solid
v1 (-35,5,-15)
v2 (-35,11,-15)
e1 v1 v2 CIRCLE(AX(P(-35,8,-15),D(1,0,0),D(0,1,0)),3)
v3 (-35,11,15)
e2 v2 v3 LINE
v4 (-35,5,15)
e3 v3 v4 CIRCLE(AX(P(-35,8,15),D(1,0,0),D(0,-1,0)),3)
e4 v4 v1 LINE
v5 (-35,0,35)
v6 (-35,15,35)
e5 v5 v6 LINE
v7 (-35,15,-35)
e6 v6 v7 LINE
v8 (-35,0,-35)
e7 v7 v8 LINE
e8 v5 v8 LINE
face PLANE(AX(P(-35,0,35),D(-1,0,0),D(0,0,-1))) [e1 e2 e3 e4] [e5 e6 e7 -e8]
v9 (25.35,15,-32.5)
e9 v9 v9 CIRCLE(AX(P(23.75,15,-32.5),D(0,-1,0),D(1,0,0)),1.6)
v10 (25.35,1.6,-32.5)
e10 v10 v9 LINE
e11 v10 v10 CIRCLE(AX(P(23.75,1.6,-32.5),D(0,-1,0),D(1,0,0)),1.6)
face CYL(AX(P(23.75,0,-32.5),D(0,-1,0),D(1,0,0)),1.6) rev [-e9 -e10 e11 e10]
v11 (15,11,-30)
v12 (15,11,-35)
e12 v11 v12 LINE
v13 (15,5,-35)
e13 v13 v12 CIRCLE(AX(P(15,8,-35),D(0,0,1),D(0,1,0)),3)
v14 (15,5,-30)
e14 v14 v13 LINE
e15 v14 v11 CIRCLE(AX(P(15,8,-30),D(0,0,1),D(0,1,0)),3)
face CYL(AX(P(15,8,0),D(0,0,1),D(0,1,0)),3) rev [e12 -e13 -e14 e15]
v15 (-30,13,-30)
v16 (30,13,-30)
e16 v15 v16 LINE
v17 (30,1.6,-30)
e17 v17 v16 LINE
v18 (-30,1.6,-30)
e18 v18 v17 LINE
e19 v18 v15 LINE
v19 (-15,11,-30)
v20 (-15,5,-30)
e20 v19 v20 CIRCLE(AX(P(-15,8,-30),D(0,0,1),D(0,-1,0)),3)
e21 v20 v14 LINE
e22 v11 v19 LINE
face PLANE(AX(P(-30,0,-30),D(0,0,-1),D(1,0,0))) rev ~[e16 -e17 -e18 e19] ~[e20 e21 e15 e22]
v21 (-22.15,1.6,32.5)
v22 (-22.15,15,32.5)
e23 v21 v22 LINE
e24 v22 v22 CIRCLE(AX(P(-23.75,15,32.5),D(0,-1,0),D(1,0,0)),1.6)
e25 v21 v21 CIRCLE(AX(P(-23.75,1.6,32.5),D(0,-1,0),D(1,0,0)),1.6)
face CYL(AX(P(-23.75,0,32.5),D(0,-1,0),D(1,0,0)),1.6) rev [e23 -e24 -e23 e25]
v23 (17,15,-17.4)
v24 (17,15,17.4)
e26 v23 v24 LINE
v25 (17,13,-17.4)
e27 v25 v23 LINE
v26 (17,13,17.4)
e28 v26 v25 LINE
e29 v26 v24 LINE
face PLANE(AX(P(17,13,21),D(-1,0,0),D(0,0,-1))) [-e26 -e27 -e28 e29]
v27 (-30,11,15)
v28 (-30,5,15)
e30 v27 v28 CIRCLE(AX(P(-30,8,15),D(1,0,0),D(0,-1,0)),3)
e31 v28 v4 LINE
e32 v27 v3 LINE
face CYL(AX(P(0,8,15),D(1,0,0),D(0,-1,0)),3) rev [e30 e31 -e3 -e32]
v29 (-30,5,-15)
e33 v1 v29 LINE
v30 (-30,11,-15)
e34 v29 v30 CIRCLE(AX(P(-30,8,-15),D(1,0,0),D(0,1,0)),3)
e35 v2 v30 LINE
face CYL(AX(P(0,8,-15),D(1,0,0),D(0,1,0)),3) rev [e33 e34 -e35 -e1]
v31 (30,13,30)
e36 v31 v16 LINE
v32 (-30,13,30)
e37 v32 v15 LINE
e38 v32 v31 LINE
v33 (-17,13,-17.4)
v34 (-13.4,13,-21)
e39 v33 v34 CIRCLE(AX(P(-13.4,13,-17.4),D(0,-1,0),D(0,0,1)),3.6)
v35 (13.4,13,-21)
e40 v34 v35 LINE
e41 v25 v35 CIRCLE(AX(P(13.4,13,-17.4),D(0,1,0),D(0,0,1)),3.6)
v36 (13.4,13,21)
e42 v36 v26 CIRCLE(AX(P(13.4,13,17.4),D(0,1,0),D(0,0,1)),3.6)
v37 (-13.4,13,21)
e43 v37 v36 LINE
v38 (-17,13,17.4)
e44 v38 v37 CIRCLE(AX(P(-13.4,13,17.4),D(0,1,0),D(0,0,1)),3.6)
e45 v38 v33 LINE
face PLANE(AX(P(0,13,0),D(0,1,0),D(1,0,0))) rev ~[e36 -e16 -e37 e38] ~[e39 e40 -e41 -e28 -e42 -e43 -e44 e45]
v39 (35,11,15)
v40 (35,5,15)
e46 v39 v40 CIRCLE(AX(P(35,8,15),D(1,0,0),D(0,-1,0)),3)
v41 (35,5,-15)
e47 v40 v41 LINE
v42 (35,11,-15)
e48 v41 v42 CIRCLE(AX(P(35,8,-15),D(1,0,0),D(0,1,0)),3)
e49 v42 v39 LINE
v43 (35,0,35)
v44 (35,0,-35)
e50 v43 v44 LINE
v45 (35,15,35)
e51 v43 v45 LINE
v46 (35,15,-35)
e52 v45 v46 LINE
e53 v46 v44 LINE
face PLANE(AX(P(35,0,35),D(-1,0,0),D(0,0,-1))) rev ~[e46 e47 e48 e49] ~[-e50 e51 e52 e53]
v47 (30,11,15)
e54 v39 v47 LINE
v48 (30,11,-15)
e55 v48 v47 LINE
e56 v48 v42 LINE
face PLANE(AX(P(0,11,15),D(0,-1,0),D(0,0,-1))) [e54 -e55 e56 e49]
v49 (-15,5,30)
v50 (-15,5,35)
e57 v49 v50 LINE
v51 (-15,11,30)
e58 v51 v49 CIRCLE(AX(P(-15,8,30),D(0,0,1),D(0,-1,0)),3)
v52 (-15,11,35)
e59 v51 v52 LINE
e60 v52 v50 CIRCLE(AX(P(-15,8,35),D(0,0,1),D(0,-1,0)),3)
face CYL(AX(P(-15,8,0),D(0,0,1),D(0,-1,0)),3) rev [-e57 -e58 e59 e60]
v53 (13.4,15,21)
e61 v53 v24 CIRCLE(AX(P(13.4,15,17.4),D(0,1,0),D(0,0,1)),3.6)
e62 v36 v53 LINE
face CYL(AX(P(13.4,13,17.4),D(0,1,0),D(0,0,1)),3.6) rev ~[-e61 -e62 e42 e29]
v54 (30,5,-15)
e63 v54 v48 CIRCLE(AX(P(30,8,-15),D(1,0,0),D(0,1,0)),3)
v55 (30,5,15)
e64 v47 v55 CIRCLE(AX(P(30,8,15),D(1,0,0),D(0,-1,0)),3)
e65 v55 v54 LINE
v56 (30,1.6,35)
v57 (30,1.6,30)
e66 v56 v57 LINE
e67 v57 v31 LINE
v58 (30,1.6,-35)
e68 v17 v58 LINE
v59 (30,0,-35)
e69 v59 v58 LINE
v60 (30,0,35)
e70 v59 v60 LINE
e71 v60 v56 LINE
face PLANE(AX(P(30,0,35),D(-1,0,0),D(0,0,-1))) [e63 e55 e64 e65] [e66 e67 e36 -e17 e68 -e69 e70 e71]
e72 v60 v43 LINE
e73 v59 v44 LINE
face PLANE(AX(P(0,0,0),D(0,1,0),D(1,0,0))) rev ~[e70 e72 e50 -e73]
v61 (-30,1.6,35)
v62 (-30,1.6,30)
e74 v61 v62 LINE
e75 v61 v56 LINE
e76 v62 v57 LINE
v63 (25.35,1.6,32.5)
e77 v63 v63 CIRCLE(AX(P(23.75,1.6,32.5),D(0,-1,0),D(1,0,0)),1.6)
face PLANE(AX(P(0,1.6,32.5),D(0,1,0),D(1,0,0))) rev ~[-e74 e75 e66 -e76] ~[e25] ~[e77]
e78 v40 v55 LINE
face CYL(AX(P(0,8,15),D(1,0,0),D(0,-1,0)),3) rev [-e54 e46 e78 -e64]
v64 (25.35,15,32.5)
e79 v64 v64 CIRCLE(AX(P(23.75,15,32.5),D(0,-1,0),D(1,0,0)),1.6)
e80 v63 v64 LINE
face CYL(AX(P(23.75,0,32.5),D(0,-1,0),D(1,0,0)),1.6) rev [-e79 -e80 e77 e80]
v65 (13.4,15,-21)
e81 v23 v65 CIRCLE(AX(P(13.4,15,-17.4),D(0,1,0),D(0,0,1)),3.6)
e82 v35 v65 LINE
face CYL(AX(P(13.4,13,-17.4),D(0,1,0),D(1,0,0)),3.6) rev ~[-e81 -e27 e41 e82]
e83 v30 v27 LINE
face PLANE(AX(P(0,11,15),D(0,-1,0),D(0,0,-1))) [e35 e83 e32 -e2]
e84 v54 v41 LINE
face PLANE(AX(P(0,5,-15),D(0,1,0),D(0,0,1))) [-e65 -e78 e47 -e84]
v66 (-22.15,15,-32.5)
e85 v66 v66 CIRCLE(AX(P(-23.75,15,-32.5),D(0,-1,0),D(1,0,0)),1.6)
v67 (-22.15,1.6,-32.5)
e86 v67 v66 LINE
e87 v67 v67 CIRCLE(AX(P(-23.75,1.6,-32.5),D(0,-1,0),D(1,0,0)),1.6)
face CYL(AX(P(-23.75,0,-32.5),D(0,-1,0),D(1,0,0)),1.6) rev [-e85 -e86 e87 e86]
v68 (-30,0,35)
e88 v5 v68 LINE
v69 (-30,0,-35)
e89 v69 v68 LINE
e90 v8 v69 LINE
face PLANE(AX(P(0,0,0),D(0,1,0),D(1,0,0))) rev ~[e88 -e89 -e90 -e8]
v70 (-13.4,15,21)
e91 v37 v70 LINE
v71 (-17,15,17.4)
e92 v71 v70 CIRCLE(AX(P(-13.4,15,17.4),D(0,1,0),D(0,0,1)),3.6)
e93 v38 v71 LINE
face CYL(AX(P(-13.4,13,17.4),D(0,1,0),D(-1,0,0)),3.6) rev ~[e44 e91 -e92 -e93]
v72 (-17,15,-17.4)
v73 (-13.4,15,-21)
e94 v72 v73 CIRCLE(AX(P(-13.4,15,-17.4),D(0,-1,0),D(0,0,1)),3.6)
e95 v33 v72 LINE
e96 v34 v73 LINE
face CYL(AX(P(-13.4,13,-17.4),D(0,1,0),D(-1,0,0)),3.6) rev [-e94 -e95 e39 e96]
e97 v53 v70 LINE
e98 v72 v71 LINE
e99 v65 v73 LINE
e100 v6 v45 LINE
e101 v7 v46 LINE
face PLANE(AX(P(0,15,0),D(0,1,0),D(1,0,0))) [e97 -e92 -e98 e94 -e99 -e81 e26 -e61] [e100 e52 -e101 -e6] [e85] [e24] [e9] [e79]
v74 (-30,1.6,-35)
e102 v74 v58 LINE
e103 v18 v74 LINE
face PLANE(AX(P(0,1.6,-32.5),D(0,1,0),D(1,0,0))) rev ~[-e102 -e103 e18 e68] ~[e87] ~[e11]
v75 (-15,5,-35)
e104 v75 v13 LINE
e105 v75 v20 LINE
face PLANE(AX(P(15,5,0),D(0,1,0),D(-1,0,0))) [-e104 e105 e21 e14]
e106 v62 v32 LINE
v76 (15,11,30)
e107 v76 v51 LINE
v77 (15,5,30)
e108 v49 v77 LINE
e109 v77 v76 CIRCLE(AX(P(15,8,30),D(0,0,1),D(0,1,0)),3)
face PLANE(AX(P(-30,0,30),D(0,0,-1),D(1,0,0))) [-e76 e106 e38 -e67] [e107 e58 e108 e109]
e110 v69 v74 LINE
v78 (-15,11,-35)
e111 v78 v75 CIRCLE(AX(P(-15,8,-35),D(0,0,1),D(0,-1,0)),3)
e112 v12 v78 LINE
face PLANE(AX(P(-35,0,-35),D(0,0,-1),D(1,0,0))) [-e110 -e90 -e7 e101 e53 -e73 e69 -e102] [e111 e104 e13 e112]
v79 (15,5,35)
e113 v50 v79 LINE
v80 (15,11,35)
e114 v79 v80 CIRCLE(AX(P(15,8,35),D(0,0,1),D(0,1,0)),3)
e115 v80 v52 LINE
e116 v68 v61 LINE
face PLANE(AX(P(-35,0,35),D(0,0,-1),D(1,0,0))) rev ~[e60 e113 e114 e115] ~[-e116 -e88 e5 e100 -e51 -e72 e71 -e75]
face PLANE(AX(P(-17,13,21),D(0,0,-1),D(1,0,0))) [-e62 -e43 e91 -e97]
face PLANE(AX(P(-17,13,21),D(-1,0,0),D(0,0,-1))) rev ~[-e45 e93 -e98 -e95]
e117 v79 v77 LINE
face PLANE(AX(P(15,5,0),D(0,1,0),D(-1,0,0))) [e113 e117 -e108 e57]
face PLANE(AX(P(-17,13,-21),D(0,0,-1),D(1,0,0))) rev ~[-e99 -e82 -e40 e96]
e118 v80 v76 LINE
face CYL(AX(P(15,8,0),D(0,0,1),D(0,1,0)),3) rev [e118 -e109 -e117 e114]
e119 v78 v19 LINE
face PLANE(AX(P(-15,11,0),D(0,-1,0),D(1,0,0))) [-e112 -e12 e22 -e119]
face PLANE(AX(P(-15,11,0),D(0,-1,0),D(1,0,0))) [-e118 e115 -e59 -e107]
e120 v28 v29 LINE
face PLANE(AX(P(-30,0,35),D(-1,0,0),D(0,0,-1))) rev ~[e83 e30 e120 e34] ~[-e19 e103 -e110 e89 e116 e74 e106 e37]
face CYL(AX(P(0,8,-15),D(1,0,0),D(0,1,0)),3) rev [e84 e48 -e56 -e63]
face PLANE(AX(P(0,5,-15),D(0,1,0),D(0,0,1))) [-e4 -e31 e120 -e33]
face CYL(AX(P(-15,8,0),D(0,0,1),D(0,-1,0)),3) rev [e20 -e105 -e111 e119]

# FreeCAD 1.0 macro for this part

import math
import FreeCAD as App
import Part
import Sketcher

V = App.Vector
Q = App.Units.Quantity


def edges_at(feature, points):
    """Names of the edges that pass closest to the given points."""
    edges = feature.Shape.Edges
    near = lambda p: min(range(len(edges)), key=lambda i: edges[i].distToShape(Part.Vertex(*p))[0])
    return sorted({f"Edge{near(p) + 1}" for p in points})


def add_polygon(sketch, points):
    """Adds a closed chain of lines whose ends are joined by coincident constraints."""
    first, n = sketch.GeometryCount, len(points)
    for a, b in zip(points, points[1:] + points[:1]):
        sketch.addGeometry(Part.LineSegment(App.Vector(*a, 0), App.Vector(*b, 0)), False)
    for i in range(n):
        sketch.addConstraint(Sketcher.Constraint("Coincident", first + i, 2, first + (i + 1) % n, 1))

doc = App.newDocument("Part")
body = doc.addObject("PartDesign::Body", "Body")

sketch1 = body.newObject("Sketcher::SketchObject", "Sketch")
sketch1.AttachmentSupport = (doc.getObject("XZ_Plane"), [""])
sketch1.MapMode = "FlatFace"
add_polygon(sketch1, [(-35, -35), (-35, 35), (35, 35), (35, -35)])
add_polygon(sketch1, [(30, 30), (-30, 30), (-30, -30), (30, -30)])
sketch1.addConstraint([
    Sketcher.Constraint("Vertical", 0),
    Sketcher.Constraint("Horizontal", 1),
    Sketcher.Constraint("Vertical", 2),
    Sketcher.Constraint("Horizontal", 3),
    Sketcher.Constraint("Horizontal", 4),
    Sketcher.Constraint("Vertical", 5),
    Sketcher.Constraint("Horizontal", 6),
    Sketcher.Constraint("Vertical", 7),
    Sketcher.Constraint("Symmetric", 0, 2, 2, 2, -1, 1),
    Sketcher.Constraint("Symmetric", 4, 2, 6, 2, -1, 1),
    Sketcher.Constraint("Equal", 3, 0),
    Sketcher.Constraint("Equal", 6, 5),
    Sketcher.Constraint("DistanceX", 1, 1, 1, 2, Q("70 mm")),
    Sketcher.Constraint("DistanceX", 4, 2, 4, 1, Q("60 mm")),
])
pad1 = body.newObject("PartDesign::Pad", "Pad")
pad1.Profile = sketch1
pad1.Length = 15
pad1.Reversed = True

sketch2 = body.newObject("Sketcher::SketchObject", "Sketch001")
sketch2.AttachmentSupport = (doc.getObject("XZ_Plane"), [""])
sketch2.MapMode = "FlatFace"
sketch2.AttachmentOffset = App.Placement(V(0, 0, -15), App.Rotation())
add_polygon(sketch2, [(-35, -35), (-35, 35), (35, 35), (35, -35)])
sketch2.addConstraint([
    Sketcher.Constraint("Vertical", 0),
    Sketcher.Constraint("Horizontal", 1),
    Sketcher.Constraint("Vertical", 2),
    Sketcher.Constraint("Horizontal", 3),
    Sketcher.Constraint("Symmetric", 0, 2, 2, 2, -1, 1),
    Sketcher.Constraint("Equal", 3, 0),
    Sketcher.Constraint("DistanceX", 1, 1, 1, 2, Q("70 mm")),
])
pad2 = body.newObject("PartDesign::Pad", "Pad001")
pad2.Profile = sketch2
pad2.Length = 2

sketch3 = body.newObject("Sketcher::SketchObject", "Sketch002")
sketch3.AttachmentSupport = (doc.getObject("XY_Plane"), [""])
sketch3.MapMode = "FlatFace"
sketch3.addGeometry([
    Part.LineSegment(V(15, 11, 0), V(-15, 11, 0)),
    Part.ArcOfCircle(Part.Circle(V(-15, 8, 0), V(0, 0, 1), 3), math.radians(90), math.radians(270)),
    Part.LineSegment(V(-15, 5, 0), V(15, 5, 0)),
    Part.ArcOfCircle(Part.Circle(V(15, 8, 0), V(0, 0, 1), 3), math.radians(-90), math.radians(90)),
], False)
sketch3.addConstraint([
    Sketcher.Constraint("Tangent", 0, 2, 1, 1),
    Sketcher.Constraint("Tangent", 1, 2, 2, 1),
    Sketcher.Constraint("Tangent", 2, 2, 3, 1),
    Sketcher.Constraint("Tangent", 3, 2, 0, 1),
    Sketcher.Constraint("Horizontal", 0),
    Sketcher.Constraint("Horizontal", 2),
    Sketcher.Constraint("Radius", 1, Q("3 mm")),
    Sketcher.Constraint("DistanceX", 0, 2, 0, 1, Q("30 mm")),
    Sketcher.Constraint("DistanceX", 1, 3, -1, 1, Q("15 mm")),
    Sketcher.Constraint("DistanceY", -1, 1, 1, 3, Q("8 mm")),
])
pocket1 = body.newObject("PartDesign::Pocket", "Pocket")
pocket1.Profile = sketch3
pocket1.Length = 107
pocket1.Midplane = True

sketch4 = body.newObject("Sketcher::SketchObject", "Sketch003")
sketch4.AttachmentSupport = (doc.getObject("YZ_Plane"), [""])
sketch4.MapMode = "FlatFace"
sketch4.addGeometry([
    Part.LineSegment(V(5, 15, 0), V(5, -15, 0)),
    Part.ArcOfCircle(Part.Circle(V(8, -15, 0), V(0, 0, 1), 3), math.radians(180), math.radians(360)),
    Part.LineSegment(V(11, -15, 0), V(11, 15, 0)),
    Part.ArcOfCircle(Part.Circle(V(8, 15, 0), V(0, 0, 1), 3), math.radians(0), math.radians(180)),
], False)
sketch4.addConstraint([
    Sketcher.Constraint("Tangent", 0, 2, 1, 1),
    Sketcher.Constraint("Tangent", 1, 2, 2, 1),
    Sketcher.Constraint("Tangent", 2, 2, 3, 1),
    Sketcher.Constraint("Tangent", 3, 2, 0, 1),
    Sketcher.Constraint("Vertical", 0),
    Sketcher.Constraint("Vertical", 2),
    Sketcher.Constraint("Radius", 1, Q("3 mm")),
    Sketcher.Constraint("DistanceY", 0, 2, 0, 1, Q("30 mm")),
    Sketcher.Constraint("DistanceX", -1, 1, 1, 3, Q("8 mm")),
    Sketcher.Constraint("DistanceY", 1, 3, -1, 1, Q("15 mm")),
])
pocket2 = body.newObject("PartDesign::Pocket", "Pocket001")
pocket2.Profile = sketch4
pocket2.Length = 77
pocket2.Midplane = True

sketch5 = body.newObject("Sketcher::SketchObject", "Sketch004")
sketch5.AttachmentSupport = (doc.getObject("XZ_Plane"), [""])
sketch5.MapMode = "FlatFace"
sketch5.AttachmentOffset = App.Placement(V(0, 0, -13), App.Rotation())
add_polygon(sketch5, [(-17, -21), (-17, 21), (17, 21), (17, -21)])
sketch5.addConstraint([
    Sketcher.Constraint("Vertical", 0),
    Sketcher.Constraint("Horizontal", 1),
    Sketcher.Constraint("Vertical", 2),
    Sketcher.Constraint("Horizontal", 3),
    Sketcher.Constraint("Symmetric", 0, 2, 2, 2, -1, 1),
    Sketcher.Constraint("DistanceX", 1, 1, 1, 2, Q("34 mm")),
    Sketcher.Constraint("DistanceY", 0, 1, 0, 2, Q("42 mm")),
])
pocket3 = body.newObject("PartDesign::Pocket", "Pocket002")
pocket3.Profile = sketch5
pocket3.Length = 5
doc.recompute()

fillet = body.newObject("PartDesign::Fillet", "Fillet")
fillet.Base = (pocket3, edges_at(pocket3, [
    (17, 14, 21),
    (17, 14, -21),
    (-17, 14, -21),
    (-17, 14, 21),
]))
fillet.Radius = 3.6

sketch6 = body.newObject("Sketcher::SketchObject", "Sketch005")
sketch6.AttachmentSupport = (doc.getObject("XZ_Plane"), [""])
sketch6.MapMode = "FlatFace"
sketch6.addGeometry([
    Part.Circle(V(-23.75, -32.5, 0), V(0, 0, 1), 1.6),
    Part.Circle(V(-23.75, 32.5, 0), V(0, 0, 1), 1.6),
    Part.Circle(V(23.75, -32.5, 0), V(0, 0, 1), 1.6),
    Part.Circle(V(23.75, 32.5, 0), V(0, 0, 1), 1.6),
], False)
sketch6.addConstraint([
    Sketcher.Constraint("Equal", 0, 1),
    Sketcher.Constraint("Equal", 1, 2),
    Sketcher.Constraint("Equal", 2, 3),
    Sketcher.Constraint("Symmetric", 1, 3, 2, 3, -1, 1),
    Sketcher.Constraint("Symmetric", 0, 3, 3, 3, -1, 1),
    Sketcher.Constraint("Symmetric", 0, 3, 2, 3, -2),
    Sketcher.Constraint("Diameter", 0, Q("3.2 mm")),
    Sketcher.Constraint("DistanceY", 0, 3, 1, 3, Q("65 mm")),
    Sketcher.Constraint("DistanceX", 0, 3, 2, 3, Q("47.5 mm")),
])
pocket4 = body.newObject("PartDesign::Pocket", "Pocket003")
pocket4.Profile = sketch6
pocket4.Length = 25

sketch7 = body.newObject("Sketcher::SketchObject", "Sketch006")
sketch7.AttachmentSupport = (doc.getObject("XZ_Plane"), [""])
sketch7.MapMode = "FlatFace"
add_polygon(sketch7, [(-30, -35), (-30, -30), (30, -30), (30, -35)])
add_polygon(sketch7, [(-30, 30), (-30, 35), (30, 35), (30, 30)])
sketch7.addConstraint([
    Sketcher.Constraint("Vertical", 0),
    Sketcher.Constraint("Horizontal", 1),
    Sketcher.Constraint("Vertical", 2),
    Sketcher.Constraint("Horizontal", 3),
    Sketcher.Constraint("Vertical", 4),
    Sketcher.Constraint("Horizontal", 5),
    Sketcher.Constraint("Vertical", 6),
    Sketcher.Constraint("Horizontal", 7),
    Sketcher.Constraint("Symmetric", 2, 2, 4, 2, -1, 1),
    Sketcher.Constraint("Symmetric", 0, 2, 6, 2, -1, 1),
    Sketcher.Constraint("Vertical", 3, 2, 4, 2),
    Sketcher.Constraint("DistanceX", 1, 1, 1, 2, Q("60 mm")),
    Sketcher.Constraint("DistanceY", 0, 1, 0, 2, Q("5 mm")),
    Sketcher.Constraint("DistanceY", 0, 2, -1, 1, Q("30 mm")),
])
pocket5 = body.newObject("PartDesign::Pocket", "Pocket004")
pocket5.Profile = sketch7
pocket5.Length = 1.6

doc.recompute()
